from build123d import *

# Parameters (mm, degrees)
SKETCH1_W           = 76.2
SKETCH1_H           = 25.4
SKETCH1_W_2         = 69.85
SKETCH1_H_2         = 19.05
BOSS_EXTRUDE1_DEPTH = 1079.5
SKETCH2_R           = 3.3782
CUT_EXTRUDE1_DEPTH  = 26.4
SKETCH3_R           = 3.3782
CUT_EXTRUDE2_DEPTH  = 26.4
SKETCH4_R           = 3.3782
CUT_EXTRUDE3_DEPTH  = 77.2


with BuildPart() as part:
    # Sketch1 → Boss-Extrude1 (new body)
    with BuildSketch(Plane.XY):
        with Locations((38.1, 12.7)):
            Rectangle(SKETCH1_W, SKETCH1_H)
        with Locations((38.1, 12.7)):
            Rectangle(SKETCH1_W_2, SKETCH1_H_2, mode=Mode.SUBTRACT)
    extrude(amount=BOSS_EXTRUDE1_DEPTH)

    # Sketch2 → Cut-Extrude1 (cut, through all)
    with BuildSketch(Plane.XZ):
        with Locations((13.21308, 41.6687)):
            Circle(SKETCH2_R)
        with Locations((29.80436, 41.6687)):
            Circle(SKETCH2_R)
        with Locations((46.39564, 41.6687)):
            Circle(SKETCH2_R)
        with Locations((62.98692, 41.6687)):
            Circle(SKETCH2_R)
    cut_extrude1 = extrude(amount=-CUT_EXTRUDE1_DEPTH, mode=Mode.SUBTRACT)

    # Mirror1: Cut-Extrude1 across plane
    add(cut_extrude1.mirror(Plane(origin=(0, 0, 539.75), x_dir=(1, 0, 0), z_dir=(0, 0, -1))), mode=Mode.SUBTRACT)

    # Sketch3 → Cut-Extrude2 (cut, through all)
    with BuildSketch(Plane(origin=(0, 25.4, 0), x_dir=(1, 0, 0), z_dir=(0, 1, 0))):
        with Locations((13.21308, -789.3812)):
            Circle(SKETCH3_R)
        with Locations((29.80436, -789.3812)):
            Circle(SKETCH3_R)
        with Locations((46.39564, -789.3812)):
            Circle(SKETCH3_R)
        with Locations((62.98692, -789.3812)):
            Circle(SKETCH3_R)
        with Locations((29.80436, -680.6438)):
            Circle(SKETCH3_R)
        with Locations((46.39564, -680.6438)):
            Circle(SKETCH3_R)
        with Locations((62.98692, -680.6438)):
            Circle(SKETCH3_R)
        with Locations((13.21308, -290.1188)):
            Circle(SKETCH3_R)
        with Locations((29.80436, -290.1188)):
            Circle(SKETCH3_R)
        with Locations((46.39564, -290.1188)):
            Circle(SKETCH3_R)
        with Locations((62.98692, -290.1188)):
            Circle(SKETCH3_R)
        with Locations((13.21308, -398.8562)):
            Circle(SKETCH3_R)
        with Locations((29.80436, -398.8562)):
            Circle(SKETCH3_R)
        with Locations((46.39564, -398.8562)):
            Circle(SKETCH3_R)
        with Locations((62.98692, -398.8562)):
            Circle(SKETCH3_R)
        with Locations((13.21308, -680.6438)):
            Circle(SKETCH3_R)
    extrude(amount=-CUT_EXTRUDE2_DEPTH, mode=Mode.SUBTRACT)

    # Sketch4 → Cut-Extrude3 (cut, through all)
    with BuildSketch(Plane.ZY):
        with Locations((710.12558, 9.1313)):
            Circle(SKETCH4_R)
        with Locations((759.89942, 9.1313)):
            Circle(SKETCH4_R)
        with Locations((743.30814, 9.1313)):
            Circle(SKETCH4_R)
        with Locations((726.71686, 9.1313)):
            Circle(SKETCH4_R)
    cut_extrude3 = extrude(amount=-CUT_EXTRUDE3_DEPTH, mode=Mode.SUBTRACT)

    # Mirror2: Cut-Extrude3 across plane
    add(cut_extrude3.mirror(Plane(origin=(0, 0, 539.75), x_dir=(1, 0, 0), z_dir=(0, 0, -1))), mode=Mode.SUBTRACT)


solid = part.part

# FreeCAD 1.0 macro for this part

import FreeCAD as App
import Part
import Sketcher
Q = App.Units.Quantity


def add_polygon(sketch, points):
    """Adds a closed chain of lines whose ends are joined by coincident constraints."""
    first, n = sketch.GeometryCount, len(points)
    for a, b in zip(points, points[1:] + points[:1]):
        sketch.addGeometry(Part.LineSegment(App.Vector(*a, 0), App.Vector(*b, 0)), False)
    for i in range(n):
        sketch.addConstraint(Sketcher.Constraint("Coincident", first + i, 2, first + (i + 1) % n, 1))

doc = App.newDocument("Part")
body = doc.addObject("PartDesign::Body", "Body")

sketch1 = body.newObject("Sketcher::SketchObject", "Sketch")
sketch1.AttachmentSupport = (doc.getObject("XY_Plane"), [""])
sketch1.MapMode = "FlatFace"
add_polygon(sketch1, [(0, 25), (0, 0), (76, 0), (76, 25)])
add_polygon(sketch1, [(73, 3), (3, 3), (3, 22), (73, 22)])
sketch1.addConstraint([
    Sketcher.Constraint("Vertical", 0),
    Sketcher.Constraint("Horizontal", 1),
    Sketcher.Constraint("Vertical", 2),
    Sketcher.Constraint("Horizontal", 3),
    Sketcher.Constraint("Horizontal", 4),
    Sketcher.Constraint("Vertical", 5),
    Sketcher.Constraint("Horizontal", 6),
    Sketcher.Constraint("Vertical", 7),
    Sketcher.Constraint("Coincident", 0, 2, -1, 1),
    Sketcher.Constraint("DistanceX", 1, 1, 1, 2, Q("3 in")),
    Sketcher.Constraint("DistanceY", 0, 2, 0, 1, Q("1 in")),
    Sketcher.Constraint("DistanceX", 4, 2, 4, 1, Q("2.75 in")),
    Sketcher.Constraint("DistanceY", 5, 1, 5, 2, Q("0.75 in")),
    Sketcher.Constraint("DistanceX", -1, 1, 4, 2, Q("0.125 in")),
    Sketcher.Constraint("DistanceY", -1, 1, 4, 2, Q("0.125 in")),
])
pad1 = body.newObject("PartDesign::Pad", "Pad")
pad1.Profile = sketch1
pad1.Length = Q("42.5 in")

sketch2 = body.newObject("Sketcher::SketchObject", "Sketch001")
sketch2.AttachmentSupport = (doc.getObject("XZ_Plane"), [""])
sketch2.MapMode = "FlatFace"
sketch2.addGeometry([
    Part.Circle(App.Vector(13.2, 41.7, 0), App.Vector(0, 0, 1), 3.4),
    Part.Circle(App.Vector(29.8, 41.7, 0), App.Vector(0, 0, 1), 3.4),
    Part.Circle(App.Vector(46.4, 41.7, 0), App.Vector(0, 0, 1), 3.4),
    Part.Circle(App.Vector(63, 41.7, 0), App.Vector(0, 0, 1), 3.4),
], False)
sketch2.addConstraint([
    Sketcher.Constraint("Equal", 0, 1),
    Sketcher.Constraint("Equal", 1, 2),
    Sketcher.Constraint("Equal", 2, 3),
    Sketcher.Constraint("Horizontal", 0, 3, 1, 3),
    Sketcher.Constraint("Horizontal", 1, 3, 2, 3),
    Sketcher.Constraint("Horizontal", 2, 3, 3, 3),
    Sketcher.Constraint("Diameter", 0, Q("0.266 in")),
    Sketcher.Constraint("DistanceX", -1, 1, 0, 3, Q("0.5202 in")),
    Sketcher.Constraint("DistanceY", -1, 1, 0, 3, Q("1.6405 in")),
    Sketcher.Constraint("DistanceX", -1, 1, 1, 3, Q("1.1734 in")),
    Sketcher.Constraint("DistanceX", -1, 1, 2, 3, Q("1.8266 in")),
    Sketcher.Constraint("DistanceX", -1, 1, 3, 3, Q("2.4798 in")),
])
pocket1 = body.newObject("PartDesign::Pocket", "Pocket")
pocket1.Profile = sketch2
pocket1.Type = "ThroughAll"
doc.recompute()

datumplane = body.newObject("PartDesign::Plane", "DatumPlane")
datumplane.AttachmentSupport = (doc.getObject("XY_Plane"), [""])
datumplane.MapMode = "FlatFace"
datumplane.AttachmentOffset = App.Placement(App.Vector(0, 0, 21.25 * 25.4), App.Rotation())
mirrored = body.newObject("PartDesign::Mirrored", "Mirrored")
mirrored.Originals = [pocket1]
mirrored.MirrorPlane = (datumplane, [""])
body.Tip = mirrored

sketch3 = body.newObject("Sketcher::SketchObject", "Sketch002")
sketch3.AttachmentSupport = (doc.getObject("XZ_Plane"), [""])
sketch3.MapMode = "FlatFace"
sketch3.AttachmentOffset = App.Placement(App.Vector(0, 0, -1 * 25.4), App.Rotation())
sketch3.addGeometry([
    Part.Circle(App.Vector(13.2, 789.4, 0), App.Vector(0, 0, 1), 3.4),
    Part.Circle(App.Vector(29.8, 789.4, 0), App.Vector(0, 0, 1), 3.4),
    Part.Circle(App.Vector(46.4, 789.4, 0), App.Vector(0, 0, 1), 3.4),
    Part.Circle(App.Vector(63, 789.4, 0), App.Vector(0, 0, 1), 3.4),
    Part.Circle(App.Vector(29.8, 680.6, 0), App.Vector(0, 0, 1), 3.4),
    Part.Circle(App.Vector(46.4, 680.6, 0), App.Vector(0, 0, 1), 3.4),
    Part.Circle(App.Vector(63, 680.6, 0), App.Vector(0, 0, 1), 3.4),
    Part.Circle(App.Vector(13.2, 290.1, 0), App.Vector(0, 0, 1), 3.4),
    Part.Circle(App.Vector(29.8, 290.1, 0), App.Vector(0, 0, 1), 3.4),
    Part.Circle(App.Vector(46.4, 290.1, 0), App.Vector(0, 0, 1), 3.4),
    Part.Circle(App.Vector(63, 290.1, 0), App.Vector(0, 0, 1), 3.4),
    Part.Circle(App.Vector(13.2, 398.9, 0), App.Vector(0, 0, 1), 3.4),
    Part.Circle(App.Vector(29.8, 398.9, 0), App.Vector(0, 0, 1), 3.4),
    Part.Circle(App.Vector(46.4, 398.9, 0), App.Vector(0, 0, 1), 3.4),
    Part.Circle(App.Vector(63, 398.9, 0), App.Vector(0, 0, 1), 3.4),
    Part.Circle(App.Vector(13.2, 680.6, 0), App.Vector(0, 0, 1), 3.4),
], False)
sketch3.addConstraint([
    Sketcher.Constraint("Equal", 0, 1),
    Sketcher.Constraint("Equal", 1, 2),
    Sketcher.Constraint("Equal", 2, 3),
    Sketcher.Constraint("Equal", 3, 4),
    Sketcher.Constraint("Equal", 4, 5),
    Sketcher.Constraint("Equal", 5, 6),
    Sketcher.Constraint("Equal", 6, 7),
    Sketcher.Constraint("Equal", 7, 8),
    Sketcher.Constraint("Equal", 8, 9),
    Sketcher.Constraint("Equal", 9, 10),
    Sketcher.Constraint("Equal", 10, 11),
    Sketcher.Constraint("Equal", 11, 12),
    Sketcher.Constraint("Equal", 12, 13),
    Sketcher.Constraint("Equal", 13, 14),
    Sketcher.Constraint("Equal", 14, 15),
    Sketcher.Constraint("Horizontal", 0, 3, 1, 3),
    Sketcher.Constraint("Horizontal", 1, 3, 2, 3),
    Sketcher.Constraint("Horizontal", 2, 3, 3, 3),
    Sketcher.Constraint("Horizontal", 4, 3, 5, 3),
    Sketcher.Constraint("Horizontal", 5, 3, 6, 3),
    Sketcher.Constraint("Horizontal", 7, 3, 8, 3),
    Sketcher.Constraint("Horizontal", 8, 3, 9, 3),
    Sketcher.Constraint("Horizontal", 9, 3, 10, 3),
    Sketcher.Constraint("Horizontal", 11, 3, 12, 3),
    Sketcher.Constraint("Horizontal", 12, 3, 13, 3),
    Sketcher.Constraint("Horizontal", 13, 3, 14, 3),
    Sketcher.Constraint("Horizontal", 6, 3, 15, 3),
    Sketcher.Constraint("Vertical", 1, 3, 4, 3),
    Sketcher.Constraint("Vertical", 2, 3, 5, 3),
    Sketcher.Constraint("Vertical", 3, 3, 6, 3),
    Sketcher.Constraint("Vertical", 0, 3, 7, 3),
    Sketcher.Constraint("Vertical", 4, 3, 8, 3),
    Sketcher.Constraint("Vertical", 5, 3, 9, 3),
    Sketcher.Constraint("Vertical", 6, 3, 10, 3),
    Sketcher.Constraint("Vertical", 7, 3, 11, 3),
    Sketcher.Constraint("Vertical", 8, 3, 12, 3),
    Sketcher.Constraint("Vertical", 9, 3, 13, 3),
    Sketcher.Constraint("Vertical", 10, 3, 14, 3),
    Sketcher.Constraint("Vertical", 11, 3, 15, 3),
    Sketcher.Constraint("Diameter", 0, Q("0.266 in")),
    Sketcher.Constraint("DistanceY", -1, 1, 0, 3, Q("31.078 in")),
    Sketcher.Constraint("DistanceY", -1, 1, 4, 3, Q("26.797 in")),
    Sketcher.Constraint("DistanceY", -1, 1, 7, 3, Q("11.422 in")),
    Sketcher.Constraint("DistanceY", -1, 1, 11, 3, Q("15.703 in")),
    Sketcher.Constraint("DistanceX", -1, 1, 0, 3, Q("0.5202 in")),
    Sketcher.Constraint("DistanceX", -1, 1, 1, 3, Q("1.1734 in")),
    Sketcher.Constraint("DistanceX", -1, 1, 2, 3, Q("1.8266 in")),
    Sketcher.Constraint("DistanceX", -1, 1, 3, 3, Q("2.4798 in")),
])
pocket2 = body.newObject("PartDesign::Pocket", "Pocket001")
pocket2.Profile = sketch3
pocket2.Type = "ThroughAll"
pocket2.Reversed = True

sketch4 = body.newObject("Sketcher::SketchObject", "Sketch003")
sketch4.AttachmentSupport = (doc.getObject("YZ_Plane"), [""])
sketch4.MapMode = "FlatFace"
sketch4.addGeometry([
    Part.Circle(App.Vector(9.1, 710.1, 0), App.Vector(0, 0, 1), 3.4),
    Part.Circle(App.Vector(9.1, 759.9, 0), App.Vector(0, 0, 1), 3.4),
    Part.Circle(App.Vector(9.1, 743.3, 0), App.Vector(0, 0, 1), 3.4),
    Part.Circle(App.Vector(9.1, 726.7, 0), App.Vector(0, 0, 1), 3.4),
], False)
sketch4.addConstraint([
    Sketcher.Constraint("Equal", 0, 1),
    Sketcher.Constraint("Equal", 1, 2),
    Sketcher.Constraint("Equal", 2, 3),
    Sketcher.Constraint("Vertical", 0, 3, 1, 3),
    Sketcher.Constraint("Vertical", 1, 3, 2, 3),
    Sketcher.Constraint("Vertical", 2, 3, 3, 3),
    Sketcher.Constraint("Diameter", 0, Q("0.266 in")),
    Sketcher.Constraint("DistanceX", -1, 1, 0, 3, Q("0.3595 in")),
    Sketcher.Constraint("DistanceY", -1, 1, 0, 3, Q("27.9577 in")),
    Sketcher.Constraint("DistanceY", -1, 1, 1, 3, Q("29.9173 in")),
    Sketcher.Constraint("DistanceY", -1, 1, 2, 3, Q("29.2641 in")),
    Sketcher.Constraint("DistanceY", -1, 1, 3, 3, Q("28.6109 in")),
])
pocket3 = body.newObject("PartDesign::Pocket", "Pocket002")
pocket3.Profile = sketch4
pocket3.Type = "ThroughAll"
pocket3.Reversed = True
doc.recompute()

datumplane2 = body.newObject("PartDesign::Plane", "DatumPlane001")
datumplane2.AttachmentSupport = (doc.getObject("XY_Plane"), [""])
datumplane2.MapMode = "FlatFace"
datumplane2.AttachmentOffset = App.Placement(App.Vector(0, 0, 21.25 * 25.4), App.Rotation())
mirrored2 = body.newObject("PartDesign::Mirrored", "Mirrored001")
mirrored2.Originals = [pocket3]
mirrored2.MirrorPlane = (datumplane2, [""])
body.Tip = mirrored2

doc.recompute()
